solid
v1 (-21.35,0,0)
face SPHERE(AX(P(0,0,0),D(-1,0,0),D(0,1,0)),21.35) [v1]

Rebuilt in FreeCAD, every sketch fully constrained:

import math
import FreeCAD as App
import Part
import Sketcher
from FreeCAD import Vector

doc = App.newDocument("Part")
body = doc.addObject("PartDesign::Body", "Body")

# Sketch on XY plane
sketch1 = body.newObject("Sketcher::SketchObject", "Sketch")
sketch1.AttachmentSupport = (doc.getObject("XY_Plane"), [""])
sketch1.MapMode = "FlatFace"
sketch1.addGeometry(Part.LineSegment(Vector(-21, 0, 0), Vector(21, 0, 0)), False)
sketch1.addGeometry(Part.ArcOfCircle(Part.Circle(Vector(0, 0, 0), Vector(0, 0, 1), 21), math.radians(0), math.radians(180)), False)
sketch1.addConstraint(Sketcher.Constraint("Coincident", 0, 1, 1, 2))
sketch1.addConstraint(Sketcher.Constraint("Coincident", 1, 1, 0, 2))
sketch1.addConstraint(Sketcher.Constraint("Horizontal", 0))
sketch1.addConstraint(Sketcher.Constraint("Coincident", 1, 3, -1, 1))
sketch1.addConstraint(Sketcher.Constraint("PointOnObject", 0, 1, -1))
sketch1.addConstraint(Sketcher.Constraint("Radius", 1, 21.35))
revolution = body.newObject("PartDesign::Revolution", "Revolution")
revolution.Profile = sketch1
revolution.ReferenceAxis = (sketch1, ["H_Axis"])
revolution.Angle = 360

doc.recompute()
